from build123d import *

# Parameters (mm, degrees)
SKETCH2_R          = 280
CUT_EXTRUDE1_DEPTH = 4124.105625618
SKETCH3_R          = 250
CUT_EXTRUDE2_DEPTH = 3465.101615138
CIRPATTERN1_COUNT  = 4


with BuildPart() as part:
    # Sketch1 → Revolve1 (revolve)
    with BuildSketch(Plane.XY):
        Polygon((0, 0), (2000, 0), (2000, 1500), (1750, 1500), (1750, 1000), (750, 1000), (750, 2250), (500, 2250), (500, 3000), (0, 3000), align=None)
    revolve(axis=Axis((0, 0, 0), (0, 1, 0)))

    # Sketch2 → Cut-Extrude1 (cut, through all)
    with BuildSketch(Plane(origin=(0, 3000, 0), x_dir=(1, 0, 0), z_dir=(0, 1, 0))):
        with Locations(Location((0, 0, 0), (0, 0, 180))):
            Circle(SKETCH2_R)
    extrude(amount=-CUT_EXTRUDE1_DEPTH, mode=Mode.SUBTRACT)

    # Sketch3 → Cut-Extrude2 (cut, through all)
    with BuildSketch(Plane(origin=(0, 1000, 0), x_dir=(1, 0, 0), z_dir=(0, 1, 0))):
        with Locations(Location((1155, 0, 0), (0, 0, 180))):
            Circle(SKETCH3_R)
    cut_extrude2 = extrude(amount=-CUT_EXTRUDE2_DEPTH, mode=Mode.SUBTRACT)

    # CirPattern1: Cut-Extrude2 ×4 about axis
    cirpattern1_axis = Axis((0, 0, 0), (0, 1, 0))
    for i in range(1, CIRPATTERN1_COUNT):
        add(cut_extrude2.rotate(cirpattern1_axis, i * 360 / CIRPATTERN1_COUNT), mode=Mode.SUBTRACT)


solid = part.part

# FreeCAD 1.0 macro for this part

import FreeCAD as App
import Part
import Sketcher
from FreeCAD import Vector
Q = App.Units.Quantity


def add_polygon(sketch, points):
    """Adds a closed chain of lines whose ends are joined by coincident constraints."""
    first, n = sketch.GeometryCount, len(points)
    for a, b in zip(points, points[1:] + points[:1]):
        sketch.addGeometry(Part.LineSegment(App.Vector(*a, 0), App.Vector(*b, 0)), False)
    for i in range(n):
        sketch.addConstraint(Sketcher.Constraint("Coincident", first + i, 2, first + (i + 1) % n, 1))

doc = App.newDocument("Part")
params = doc.addObject("Spreadsheet::Sheet", "Params")
for row, (alias, value) in enumerate([
    ("sketch1_width", "2000 mm"),
    ("sketch1_width2", "250 mm"),
    ("sketch1_width3", "1000 mm"),
    ("sketch1_height", "1500 mm"),
    ("sketch1_height2", "1250 mm"),
    ("revolution_angle", "360 deg"),
    ("sketch2_diameter", "560 mm"),
    ("sketch3_diameter", "500 mm"),
], start=1):
    params.set(f"A{row}", alias)
    params.set(f"B{row}", "=" + value)
    params.setAlias(f"B{row}", alias)

body = doc.addObject("PartDesign::Body", "Body")

sketch1 = doc.addObject("Sketcher::SketchObject", "Sketch")
body.addObject(sketch1)
sketch1.AttachmentSupport = (doc.XY_Plane, [""])
sketch1.MapMode = "FlatFace"
add_polygon(sketch1, [(0, 0), (2000, 0), (2000, 1500), (1750, 1500), (1750, 1000), (750, 1000), (750, 2250), (500, 2250), (500, 3000), (0, 3000)])
sketch1.addConstraint(Sketcher.Constraint("Horizontal", 0))
sketch1.addConstraint(Sketcher.Constraint("Vertical", 1))
sketch1.addConstraint(Sketcher.Constraint("Horizontal", 2))
sketch1.addConstraint(Sketcher.Constraint("Vertical", 3))
sketch1.addConstraint(Sketcher.Constraint("Horizontal", 4))
sketch1.addConstraint(Sketcher.Constraint("Vertical", 5))
sketch1.addConstraint(Sketcher.Constraint("Horizontal", 6))
sketch1.addConstraint(Sketcher.Constraint("Vertical", 7))
sketch1.addConstraint(Sketcher.Constraint("Horizontal", 8))
sketch1.addConstraint(Sketcher.Constraint("Vertical", 9))
sketch1.addConstraint(Sketcher.Constraint("Coincident", 9, 2, -1, 1))
sketch1.addConstraint(Sketcher.Constraint("Equal", 2, 6))
sketch1.addConstraint(Sketcher.Constraint("Equal", 8, 3))
sketch1.addConstraint(Sketcher.Constraint("DistanceX", 0, 1, 0, 2, Q("2000 mm")))
sketch1.addConstraint(Sketcher.Constraint("DistanceX", 2, 2, 2, 1, Q("250 mm")))
sketch1.addConstraint(Sketcher.Constraint("DistanceX", 4, 2, 4, 1, Q("1000 mm")))
sketch1.addConstraint(Sketcher.Constraint("DistanceY", 1, 1, 1, 2, Q("1500 mm")))
sketch1.addConstraint(Sketcher.Constraint("DistanceY", 5, 1, 5, 2, Q("1250 mm")))
sketch1.addConstraint(Sketcher.Constraint("DistanceY", 7, 1, 7, 2, Q("750 mm")))
sketch1.setExpression("Constraints[23]", "Params.sketch1_width")
sketch1.setExpression("Constraints[24]", "Params.sketch1_width2")
sketch1.setExpression("Constraints[25]", "Params.sketch1_width3")
sketch1.setExpression("Constraints[26]", "Params.sketch1_height")
sketch1.setExpression("Constraints[27]", "Params.sketch1_height2")
revolution = doc.addObject("PartDesign::Revolution", "Revolution")
body.addObject(revolution)
revolution.Profile = sketch1
revolution.ReferenceAxis = (sketch1, ["V_Axis"])
revolution.setExpression("Angle", "Params.revolution_angle")

sketch2 = doc.addObject("Sketcher::SketchObject", "Sketch001")
body.addObject(sketch2)
sketch2.AttachmentSupport = (doc.XZ_Plane, [""])
sketch2.MapMode = "FlatFace"
sketch2.AttachmentOffset = App.Placement(Vector(0, 0, -3000), App.Rotation())
sketch2.addGeometry(Part.Circle(Vector(0, 0, 0), Vector(0, 0, 1), 280), False)
sketch2.addConstraint(Sketcher.Constraint("Coincident", 0, 3, -1, 1))
sketch2.addConstraint(Sketcher.Constraint("Diameter", 0, Q("560 mm")))
sketch2.setExpression("Constraints[1]", "Params.sketch2_diameter")
pocket1 = doc.addObject("PartDesign::Pocket", "Pocket")
body.addObject(pocket1)
pocket1.Profile = sketch2
pocket1.Type = "ThroughAll"
pocket1.Reversed = True

sketch3 = doc.addObject("Sketcher::SketchObject", "Sketch002")
body.addObject(sketch3)
sketch3.AttachmentSupport = (doc.XZ_Plane, [""])
sketch3.MapMode = "FlatFace"
sketch3.AttachmentOffset = App.Placement(Vector(0, 0, -1000), App.Rotation())
sketch3.addGeometry(Part.Circle(Vector(1155, 0, 0), Vector(0, 0, 1), 250), False)
sketch3.addConstraint(Sketcher.Constraint("PointOnObject", 0, 3, -1))
sketch3.addConstraint(Sketcher.Constraint("Diameter", 0, Q("500 mm")))
sketch3.addConstraint(Sketcher.Constraint("DistanceX", -1, 1, 0, 3, Q("1155 mm")))
sketch3.setExpression("Constraints[1]", "Params.sketch3_diameter")
pocket2 = doc.addObject("PartDesign::Pocket", "Pocket001")
body.addObject(pocket2)
pocket2.Profile = sketch3
pocket2.Type = "ThroughAll"
pocket2.Reversed = True
doc.recompute()

polarpattern = doc.addObject("PartDesign::PolarPattern", "PolarPattern")
body.addObject(polarpattern)
polarpattern.Originals = [pocket2]
polarpattern.Axis = (doc.Y_Axis, [""])
polarpattern.Angle = 360
polarpattern.Occurrences = 4
body.Tip = polarpattern

doc.recompute()
